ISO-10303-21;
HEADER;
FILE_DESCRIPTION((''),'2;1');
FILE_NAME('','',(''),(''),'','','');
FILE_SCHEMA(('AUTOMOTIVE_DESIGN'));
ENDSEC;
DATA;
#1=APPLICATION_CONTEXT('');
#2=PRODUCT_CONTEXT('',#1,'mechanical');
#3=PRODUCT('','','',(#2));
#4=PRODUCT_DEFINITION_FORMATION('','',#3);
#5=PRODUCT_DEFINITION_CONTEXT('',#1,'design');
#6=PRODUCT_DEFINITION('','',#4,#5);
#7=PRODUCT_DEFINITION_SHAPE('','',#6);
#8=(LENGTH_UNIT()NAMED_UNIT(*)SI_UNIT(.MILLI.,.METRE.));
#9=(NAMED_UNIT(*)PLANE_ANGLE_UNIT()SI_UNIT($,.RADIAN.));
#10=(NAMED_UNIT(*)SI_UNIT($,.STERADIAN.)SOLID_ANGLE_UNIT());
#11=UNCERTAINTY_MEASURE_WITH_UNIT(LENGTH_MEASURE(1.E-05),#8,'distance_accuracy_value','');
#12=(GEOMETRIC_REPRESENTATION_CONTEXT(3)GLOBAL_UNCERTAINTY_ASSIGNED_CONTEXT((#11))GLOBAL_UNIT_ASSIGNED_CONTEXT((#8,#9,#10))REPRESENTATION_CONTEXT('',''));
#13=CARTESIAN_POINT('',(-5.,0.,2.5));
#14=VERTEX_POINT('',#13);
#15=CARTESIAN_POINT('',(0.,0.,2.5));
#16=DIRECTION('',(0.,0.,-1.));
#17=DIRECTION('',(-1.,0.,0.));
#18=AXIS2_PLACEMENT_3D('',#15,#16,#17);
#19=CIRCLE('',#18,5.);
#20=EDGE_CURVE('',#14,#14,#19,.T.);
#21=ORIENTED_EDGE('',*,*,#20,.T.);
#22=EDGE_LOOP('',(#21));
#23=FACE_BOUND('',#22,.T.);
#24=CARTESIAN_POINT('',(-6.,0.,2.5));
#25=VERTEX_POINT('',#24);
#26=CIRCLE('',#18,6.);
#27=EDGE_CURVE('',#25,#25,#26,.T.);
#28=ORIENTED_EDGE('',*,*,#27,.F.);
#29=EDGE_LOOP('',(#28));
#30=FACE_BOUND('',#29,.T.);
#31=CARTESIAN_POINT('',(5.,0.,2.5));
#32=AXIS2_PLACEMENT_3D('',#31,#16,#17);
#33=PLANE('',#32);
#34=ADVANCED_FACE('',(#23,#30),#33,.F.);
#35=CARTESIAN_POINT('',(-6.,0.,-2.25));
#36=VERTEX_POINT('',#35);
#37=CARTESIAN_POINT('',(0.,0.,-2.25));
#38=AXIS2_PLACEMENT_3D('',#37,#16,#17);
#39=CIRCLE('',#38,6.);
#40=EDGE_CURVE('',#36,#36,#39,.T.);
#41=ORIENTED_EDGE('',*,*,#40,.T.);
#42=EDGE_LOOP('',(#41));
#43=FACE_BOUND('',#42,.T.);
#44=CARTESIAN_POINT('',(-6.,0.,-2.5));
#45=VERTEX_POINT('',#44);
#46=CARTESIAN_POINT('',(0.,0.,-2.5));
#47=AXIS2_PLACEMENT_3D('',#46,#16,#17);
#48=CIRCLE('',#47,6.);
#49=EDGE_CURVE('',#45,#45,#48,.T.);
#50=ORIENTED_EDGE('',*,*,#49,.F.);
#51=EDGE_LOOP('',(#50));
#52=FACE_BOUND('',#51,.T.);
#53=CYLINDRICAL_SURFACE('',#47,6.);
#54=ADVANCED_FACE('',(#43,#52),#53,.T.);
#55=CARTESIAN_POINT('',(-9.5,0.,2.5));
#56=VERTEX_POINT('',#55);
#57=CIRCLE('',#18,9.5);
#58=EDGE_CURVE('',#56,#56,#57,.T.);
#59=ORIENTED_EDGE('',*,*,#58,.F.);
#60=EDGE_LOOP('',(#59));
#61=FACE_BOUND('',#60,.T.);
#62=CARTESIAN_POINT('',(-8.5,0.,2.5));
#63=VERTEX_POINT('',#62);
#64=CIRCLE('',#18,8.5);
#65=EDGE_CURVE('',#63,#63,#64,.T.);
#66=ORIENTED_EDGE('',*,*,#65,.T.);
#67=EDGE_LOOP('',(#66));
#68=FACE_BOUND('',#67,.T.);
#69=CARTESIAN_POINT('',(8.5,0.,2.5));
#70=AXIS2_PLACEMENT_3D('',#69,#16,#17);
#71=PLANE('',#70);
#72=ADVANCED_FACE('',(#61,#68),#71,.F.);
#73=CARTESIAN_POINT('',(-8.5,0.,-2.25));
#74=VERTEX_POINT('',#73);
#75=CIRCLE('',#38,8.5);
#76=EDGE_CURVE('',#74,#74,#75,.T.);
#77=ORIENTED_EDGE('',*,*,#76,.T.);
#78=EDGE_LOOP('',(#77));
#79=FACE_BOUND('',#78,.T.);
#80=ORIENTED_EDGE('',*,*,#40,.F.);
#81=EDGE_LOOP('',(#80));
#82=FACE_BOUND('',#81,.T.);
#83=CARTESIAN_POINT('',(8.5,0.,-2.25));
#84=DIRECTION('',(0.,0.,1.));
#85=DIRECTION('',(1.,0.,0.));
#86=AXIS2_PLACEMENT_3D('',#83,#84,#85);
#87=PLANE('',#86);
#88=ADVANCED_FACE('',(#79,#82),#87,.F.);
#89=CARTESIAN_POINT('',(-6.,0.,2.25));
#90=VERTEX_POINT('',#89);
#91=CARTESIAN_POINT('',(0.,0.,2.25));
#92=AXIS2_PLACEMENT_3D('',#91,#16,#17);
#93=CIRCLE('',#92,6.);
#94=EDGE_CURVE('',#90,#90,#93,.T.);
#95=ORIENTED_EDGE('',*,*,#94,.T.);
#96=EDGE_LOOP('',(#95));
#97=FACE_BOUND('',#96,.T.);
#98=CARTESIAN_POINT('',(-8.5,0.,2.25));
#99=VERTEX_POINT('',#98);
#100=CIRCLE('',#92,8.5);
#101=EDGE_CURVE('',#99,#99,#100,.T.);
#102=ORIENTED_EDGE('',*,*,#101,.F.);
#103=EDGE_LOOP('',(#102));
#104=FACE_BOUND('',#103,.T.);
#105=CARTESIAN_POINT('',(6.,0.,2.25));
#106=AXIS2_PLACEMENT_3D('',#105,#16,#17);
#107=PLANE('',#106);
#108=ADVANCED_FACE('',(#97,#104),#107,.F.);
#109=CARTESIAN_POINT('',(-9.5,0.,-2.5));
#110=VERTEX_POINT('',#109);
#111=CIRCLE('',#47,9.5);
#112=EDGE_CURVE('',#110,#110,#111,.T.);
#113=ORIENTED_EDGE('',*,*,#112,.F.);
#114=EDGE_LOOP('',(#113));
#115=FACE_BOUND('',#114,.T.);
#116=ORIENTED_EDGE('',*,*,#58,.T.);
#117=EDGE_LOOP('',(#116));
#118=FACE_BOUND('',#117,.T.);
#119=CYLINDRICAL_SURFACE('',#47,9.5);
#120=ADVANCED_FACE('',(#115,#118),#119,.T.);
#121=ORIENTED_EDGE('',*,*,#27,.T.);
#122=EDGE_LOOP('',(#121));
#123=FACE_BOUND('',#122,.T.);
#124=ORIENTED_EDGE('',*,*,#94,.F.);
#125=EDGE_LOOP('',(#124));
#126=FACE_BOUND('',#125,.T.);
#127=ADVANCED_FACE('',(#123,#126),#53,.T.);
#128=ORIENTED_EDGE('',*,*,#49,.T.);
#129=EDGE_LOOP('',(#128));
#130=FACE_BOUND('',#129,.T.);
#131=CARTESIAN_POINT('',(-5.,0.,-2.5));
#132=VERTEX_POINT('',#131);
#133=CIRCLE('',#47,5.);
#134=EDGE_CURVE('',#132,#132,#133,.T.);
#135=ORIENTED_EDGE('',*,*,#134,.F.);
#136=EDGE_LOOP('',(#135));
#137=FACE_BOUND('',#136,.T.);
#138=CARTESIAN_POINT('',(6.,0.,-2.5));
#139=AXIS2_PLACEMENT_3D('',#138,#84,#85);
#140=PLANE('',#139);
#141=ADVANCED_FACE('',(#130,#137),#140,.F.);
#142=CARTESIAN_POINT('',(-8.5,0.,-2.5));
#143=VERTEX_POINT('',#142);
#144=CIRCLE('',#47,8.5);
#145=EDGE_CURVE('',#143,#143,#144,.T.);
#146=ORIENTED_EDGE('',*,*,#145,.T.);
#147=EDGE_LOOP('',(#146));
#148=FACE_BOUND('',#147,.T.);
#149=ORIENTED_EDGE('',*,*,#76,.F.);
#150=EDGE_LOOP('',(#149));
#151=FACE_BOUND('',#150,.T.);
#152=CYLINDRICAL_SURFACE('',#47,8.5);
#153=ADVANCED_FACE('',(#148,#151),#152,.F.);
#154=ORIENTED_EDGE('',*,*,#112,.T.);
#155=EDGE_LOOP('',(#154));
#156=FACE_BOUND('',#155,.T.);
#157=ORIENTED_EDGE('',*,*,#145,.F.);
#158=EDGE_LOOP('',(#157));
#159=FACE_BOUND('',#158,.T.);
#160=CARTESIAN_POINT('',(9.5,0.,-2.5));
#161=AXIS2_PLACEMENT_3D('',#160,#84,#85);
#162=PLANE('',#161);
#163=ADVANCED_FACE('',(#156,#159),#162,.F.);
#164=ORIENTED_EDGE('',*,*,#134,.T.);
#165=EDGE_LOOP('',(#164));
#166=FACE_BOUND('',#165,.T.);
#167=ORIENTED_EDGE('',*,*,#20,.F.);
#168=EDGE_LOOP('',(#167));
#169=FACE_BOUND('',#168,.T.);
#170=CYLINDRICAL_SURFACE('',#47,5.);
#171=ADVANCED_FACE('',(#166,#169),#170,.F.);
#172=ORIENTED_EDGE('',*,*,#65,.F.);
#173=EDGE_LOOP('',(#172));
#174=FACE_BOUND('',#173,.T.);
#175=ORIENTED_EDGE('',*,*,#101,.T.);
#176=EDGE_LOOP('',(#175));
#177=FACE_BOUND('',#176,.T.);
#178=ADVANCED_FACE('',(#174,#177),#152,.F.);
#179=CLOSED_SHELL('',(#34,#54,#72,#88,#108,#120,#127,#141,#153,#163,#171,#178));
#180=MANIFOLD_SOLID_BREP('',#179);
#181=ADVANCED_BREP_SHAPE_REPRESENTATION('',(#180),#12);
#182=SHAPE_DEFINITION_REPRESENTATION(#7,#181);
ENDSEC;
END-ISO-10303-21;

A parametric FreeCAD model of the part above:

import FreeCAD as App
import Part
import Sketcher
from FreeCAD import Vector


def add_polygon(sketch, points):
    """Adds a closed chain of lines whose ends are joined by coincident constraints."""
    first, n = sketch.GeometryCount, len(points)
    for a, b in zip(points, points[1:] + points[:1]):
        sketch.addGeometry(Part.LineSegment(App.Vector(*a, 0), App.Vector(*b, 0)), False)
    for i in range(n):
        sketch.addConstraint(Sketcher.Constraint("Coincident", first + i, 2, first + (i + 1) % n, 1))

doc = App.newDocument("Part")
params = doc.addObject("Spreadsheet::Sheet", "Params")
for row, (alias, value) in enumerate([
    ("sketch1_width", "1 mm"),
    ("sketch1_height", "5 mm"),
    ("sketch1_width2", "2.5 mm"),
    ("sketch1_height2", "0.25 mm"),
    ("revolution_angle", "360 deg"),
], start=1):
    params.set(f"A{row}", alias)
    params.set(f"B{row}", "=" + value)
    params.setAlias(f"B{row}", alias)

body = doc.addObject("PartDesign::Body", "Body")

# Sketch on XZ plane
sketch1 = doc.addObject("Sketcher::SketchObject", "Sketch")
body.addObject(sketch1)
sketch1.AttachmentSupport = (doc.XZ_Plane, [""])
sketch1.MapMode = "FlatFace"
add_polygon(sketch1, [(5, 2.5), (6, 2.5), (6, 2.25), (8.5, 2.25), (8.5, 2.5), (9.5, 2.5), (9.5, -2.5), (8.5, -2.5), (8.5, -2.25), (6, -2.25), (6, -2.5), (5, -2.5)])  # lines 0-11
sketch1.addConstraint(Sketcher.Constraint("Horizontal", 0))
sketch1.addConstraint(Sketcher.Constraint("Vertical", 1))
sketch1.addConstraint(Sketcher.Constraint("Horizontal", 2))
sketch1.addConstraint(Sketcher.Constraint("Vertical", 3))
sketch1.addConstraint(Sketcher.Constraint("Horizontal", 4))
sketch1.addConstraint(Sketcher.Constraint("Vertical", 5))
sketch1.addConstraint(Sketcher.Constraint("Horizontal", 6))
sketch1.addConstraint(Sketcher.Constraint("Vertical", 7))
sketch1.addConstraint(Sketcher.Constraint("Horizontal", 8))
sketch1.addConstraint(Sketcher.Constraint("Vertical", 9))
sketch1.addConstraint(Sketcher.Constraint("Horizontal", 10))
sketch1.addConstraint(Sketcher.Constraint("Vertical", 11))
sketch1.addConstraint(Sketcher.Constraint("Symmetric", 3, 2, 6, 2, -1))
sketch1.addConstraint(Sketcher.Constraint("Symmetric", 1, 2, 8, 2, -1))
sketch1.addConstraint(Sketcher.Constraint("Horizontal", 0, 2, 3, 2))
sketch1.addConstraint(Sketcher.Constraint("Horizontal", 6, 2, 9, 2))
sketch1.addConstraint(Sketcher.Constraint("Equal", 0, 4))
sketch1.addConstraint(Sketcher.Constraint("DistanceX", 0, 1, 0, 2, 1.0))
sketch1.addConstraint(Sketcher.Constraint("DistanceY", 5, 2, 5, 1, 5.0))
sketch1.addConstraint(Sketcher.Constraint("DistanceX", 2, 1, 2, 2, 2.5))
sketch1.addConstraint(Sketcher.Constraint("DistanceX", -1, 1, 0, 2, 6.0))
sketch1.addConstraint(Sketcher.Constraint("DistanceY", 1, 2, 1, 1, 0.25))
sketch1.setExpression("Constraints[29]", "Params.sketch1_width")
sketch1.setExpression("Constraints[30]", "Params.sketch1_height")
sketch1.setExpression("Constraints[31]", "Params.sketch1_width2")
sketch1.setExpression("Constraints[33]", "Params.sketch1_height2")
revolution = doc.addObject("PartDesign::Revolution", "Revolution")
body.addObject(revolution)
revolution.Profile = sketch1
revolution.ReferenceAxis = (sketch1, ["V_Axis"])
revolution.setExpression("Angle", "Params.revolution_angle")

doc.recompute()
